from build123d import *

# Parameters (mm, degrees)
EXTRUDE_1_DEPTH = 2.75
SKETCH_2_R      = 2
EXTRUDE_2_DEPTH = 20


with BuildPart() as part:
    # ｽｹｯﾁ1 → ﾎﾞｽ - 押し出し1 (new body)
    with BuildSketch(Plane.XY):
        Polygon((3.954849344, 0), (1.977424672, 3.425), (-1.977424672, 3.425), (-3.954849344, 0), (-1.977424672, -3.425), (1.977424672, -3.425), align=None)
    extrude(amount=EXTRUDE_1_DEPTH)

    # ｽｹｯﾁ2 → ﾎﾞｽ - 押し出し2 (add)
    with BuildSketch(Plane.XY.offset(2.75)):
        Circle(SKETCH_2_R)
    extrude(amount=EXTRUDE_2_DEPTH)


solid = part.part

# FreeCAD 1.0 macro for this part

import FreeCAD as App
import Part
import Sketcher
Q = App.Units.Quantity


def add_polygon(sketch, points):
    """Adds a closed chain of lines whose ends are joined by coincident constraints."""
    first, n = sketch.GeometryCount, len(points)
    for a, b in zip(points, points[1:] + points[:1]):
        sketch.addGeometry(Part.LineSegment(App.Vector(*a, 0), App.Vector(*b, 0)), False)
    for i in range(n):
        sketch.addConstraint(Sketcher.Constraint("Coincident", first + i, 2, first + (i + 1) % n, 1))

doc = App.newDocument("Part")
body = doc.addObject("PartDesign::Body", "Body")

# Sketch on XY plane
sketch1 = body.newObject("Sketcher::SketchObject", "Sketch")
sketch1.AttachmentSupport = (doc.getObject("XY_Plane"), [""])
sketch1.MapMode = "FlatFace"
add_polygon(sketch1, [(4, 0), (2, 3.4), (-2, 3.4), (-4, 0), (-2, -3.4), (2, -3.4)])  # lines 0-5
sketch1.addConstraint(Sketcher.Constraint("Horizontal", 1))
sketch1.addConstraint(Sketcher.Constraint("Horizontal", 4))
sketch1.addConstraint(Sketcher.Constraint("Symmetric", 0, 2, 3, 2, -1, 1))
sketch1.addConstraint(Sketcher.Constraint("Symmetric", 2, 2, 5, 2, -1, 1))
sketch1.addConstraint(Sketcher.Constraint("PointOnObject", 2, 2, -1))
sketch1.addConstraint(Sketcher.Constraint("Parallel", 2, 5))
sketch1.addConstraint(Sketcher.Constraint("Vertical", 1, 2, 3, 2))
sketch1.addConstraint(Sketcher.Constraint("Angle", 0, Q("120 deg")))
sketch1.addConstraint(Sketcher.Constraint("DistanceY", 3, 2, 1, 2, Q("6.85 mm")))
sketch1.addConstraint(Sketcher.Constraint("DistanceX", 1, 2, 1, 1, Q("3.954849 mm")))
pad1 = body.newObject("PartDesign::Pad", "Pad")
pad1.Profile = sketch1
pad1.Length = 2.75

# Sketch on XY plane
sketch2 = body.newObject("Sketcher::SketchObject", "Sketch001")
sketch2.AttachmentSupport = (doc.getObject("XY_Plane"), [""])
sketch2.MapMode = "FlatFace"
sketch2.AttachmentOffset = App.Placement(App.Vector(0, 0, 2.75), App.Rotation())
sketch2.addGeometry(Part.Circle(App.Vector(0, 0, 0), App.Vector(0, 0, 1), 2), False)
sketch2.addConstraint(Sketcher.Constraint("Coincident", 0, 3, -1, 1))
sketch2.addConstraint(Sketcher.Constraint("Diameter", 0, Q("4 mm")))
pad2 = body.newObject("PartDesign::Pad", "Pad001")
pad2.Profile = sketch2
pad2.Length = 20

doc.recompute()
